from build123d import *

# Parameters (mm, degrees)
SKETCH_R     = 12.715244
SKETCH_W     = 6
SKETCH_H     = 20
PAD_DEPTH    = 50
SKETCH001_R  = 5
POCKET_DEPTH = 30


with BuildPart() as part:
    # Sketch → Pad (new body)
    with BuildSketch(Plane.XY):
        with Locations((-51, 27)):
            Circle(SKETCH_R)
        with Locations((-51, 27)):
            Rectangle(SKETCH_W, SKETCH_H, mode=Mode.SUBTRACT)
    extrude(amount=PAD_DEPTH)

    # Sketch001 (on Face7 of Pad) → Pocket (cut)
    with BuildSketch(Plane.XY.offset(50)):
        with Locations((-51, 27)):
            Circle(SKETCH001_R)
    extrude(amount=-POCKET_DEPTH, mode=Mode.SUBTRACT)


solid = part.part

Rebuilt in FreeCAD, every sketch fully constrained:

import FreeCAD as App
import Part
import Sketcher
Q = App.Units.Quantity

doc = App.newDocument("Part")
body = doc.addObject("PartDesign::Body", "Body")

# Sketch on XY plane
sketch1 = body.newObject("Sketcher::SketchObject", "Sketch")
sketch1.AttachmentSupport = (doc.getObject("XY_Plane"), [""])
sketch1.MapMode = "FlatFace"
sketch1.addGeometry([
    Part.Circle(App.Vector(-51, 27, 0), App.Vector(0, 0, 1), 13),  # 0
    Part.LineSegment(App.Vector(-48, 17, 0), App.Vector(-54, 17, 0)),  # 1
    Part.LineSegment(App.Vector(-54, 17, 0), App.Vector(-54, 37, 0)),  # 2
    Part.LineSegment(App.Vector(-54, 37, 0), App.Vector(-48, 37, 0)),  # 3
    Part.LineSegment(App.Vector(-48, 37, 0), App.Vector(-48, 17, 0)),  # 4
], False)
sketch1.addConstraint([
    Sketcher.Constraint("Coincident", 1, 2, 2, 1),
    Sketcher.Constraint("Coincident", 2, 2, 3, 1),
    Sketcher.Constraint("Coincident", 3, 2, 4, 1),
    Sketcher.Constraint("Coincident", 4, 2, 1, 1),
    Sketcher.Constraint("Horizontal", 1),
    Sketcher.Constraint("Vertical", 2),
    Sketcher.Constraint("Horizontal", 3),
    Sketcher.Constraint("Vertical", 4),
    Sketcher.Constraint("DistanceX", 1, 2, 1, 1, Q("6 mm")),
    Sketcher.Constraint("DistanceY", 2, 1, 2, 2, Q("20 mm")),
    Sketcher.Constraint("DistanceX", 0, 3, -1, 1, Q("51 mm")),
    Sketcher.Constraint("DistanceY", -1, 1, 0, 3, Q("27 mm")),
    Sketcher.Constraint("DistanceX", 1, 2, -1, 1, Q("54 mm")),
    Sketcher.Constraint("DistanceY", -1, 1, 1, 2, Q("17 mm")),
    Sketcher.Constraint("Diameter", 0, Q("25.430488 mm")),
])
pad1 = body.newObject("PartDesign::Pad", "Pad")
pad1.Profile = sketch1
pad1.Length = 50

# Sketch on XY plane
sketch2 = body.newObject("Sketcher::SketchObject", "Sketch001")
sketch2.AttachmentSupport = (doc.getObject("XY_Plane"), [""])
sketch2.MapMode = "FlatFace"
sketch2.AttachmentOffset = App.Placement(App.Vector(0, 0, 50), App.Rotation())
sketch2.addGeometry(Part.Circle(App.Vector(-51, 27, 0), App.Vector(0, 0, 1), 5), False)
sketch2.addConstraint([
    Sketcher.Constraint("Diameter", 0, Q("10 mm")),
    Sketcher.Constraint("DistanceX", 0, 3, -1, 1, Q("51 mm")),
    Sketcher.Constraint("DistanceY", -1, 1, 0, 3, Q("27 mm")),
])
pocket1 = body.newObject("PartDesign::Pocket", "Pocket")
pocket1.Profile = sketch2
pocket1.Length = 30

doc.recompute()
